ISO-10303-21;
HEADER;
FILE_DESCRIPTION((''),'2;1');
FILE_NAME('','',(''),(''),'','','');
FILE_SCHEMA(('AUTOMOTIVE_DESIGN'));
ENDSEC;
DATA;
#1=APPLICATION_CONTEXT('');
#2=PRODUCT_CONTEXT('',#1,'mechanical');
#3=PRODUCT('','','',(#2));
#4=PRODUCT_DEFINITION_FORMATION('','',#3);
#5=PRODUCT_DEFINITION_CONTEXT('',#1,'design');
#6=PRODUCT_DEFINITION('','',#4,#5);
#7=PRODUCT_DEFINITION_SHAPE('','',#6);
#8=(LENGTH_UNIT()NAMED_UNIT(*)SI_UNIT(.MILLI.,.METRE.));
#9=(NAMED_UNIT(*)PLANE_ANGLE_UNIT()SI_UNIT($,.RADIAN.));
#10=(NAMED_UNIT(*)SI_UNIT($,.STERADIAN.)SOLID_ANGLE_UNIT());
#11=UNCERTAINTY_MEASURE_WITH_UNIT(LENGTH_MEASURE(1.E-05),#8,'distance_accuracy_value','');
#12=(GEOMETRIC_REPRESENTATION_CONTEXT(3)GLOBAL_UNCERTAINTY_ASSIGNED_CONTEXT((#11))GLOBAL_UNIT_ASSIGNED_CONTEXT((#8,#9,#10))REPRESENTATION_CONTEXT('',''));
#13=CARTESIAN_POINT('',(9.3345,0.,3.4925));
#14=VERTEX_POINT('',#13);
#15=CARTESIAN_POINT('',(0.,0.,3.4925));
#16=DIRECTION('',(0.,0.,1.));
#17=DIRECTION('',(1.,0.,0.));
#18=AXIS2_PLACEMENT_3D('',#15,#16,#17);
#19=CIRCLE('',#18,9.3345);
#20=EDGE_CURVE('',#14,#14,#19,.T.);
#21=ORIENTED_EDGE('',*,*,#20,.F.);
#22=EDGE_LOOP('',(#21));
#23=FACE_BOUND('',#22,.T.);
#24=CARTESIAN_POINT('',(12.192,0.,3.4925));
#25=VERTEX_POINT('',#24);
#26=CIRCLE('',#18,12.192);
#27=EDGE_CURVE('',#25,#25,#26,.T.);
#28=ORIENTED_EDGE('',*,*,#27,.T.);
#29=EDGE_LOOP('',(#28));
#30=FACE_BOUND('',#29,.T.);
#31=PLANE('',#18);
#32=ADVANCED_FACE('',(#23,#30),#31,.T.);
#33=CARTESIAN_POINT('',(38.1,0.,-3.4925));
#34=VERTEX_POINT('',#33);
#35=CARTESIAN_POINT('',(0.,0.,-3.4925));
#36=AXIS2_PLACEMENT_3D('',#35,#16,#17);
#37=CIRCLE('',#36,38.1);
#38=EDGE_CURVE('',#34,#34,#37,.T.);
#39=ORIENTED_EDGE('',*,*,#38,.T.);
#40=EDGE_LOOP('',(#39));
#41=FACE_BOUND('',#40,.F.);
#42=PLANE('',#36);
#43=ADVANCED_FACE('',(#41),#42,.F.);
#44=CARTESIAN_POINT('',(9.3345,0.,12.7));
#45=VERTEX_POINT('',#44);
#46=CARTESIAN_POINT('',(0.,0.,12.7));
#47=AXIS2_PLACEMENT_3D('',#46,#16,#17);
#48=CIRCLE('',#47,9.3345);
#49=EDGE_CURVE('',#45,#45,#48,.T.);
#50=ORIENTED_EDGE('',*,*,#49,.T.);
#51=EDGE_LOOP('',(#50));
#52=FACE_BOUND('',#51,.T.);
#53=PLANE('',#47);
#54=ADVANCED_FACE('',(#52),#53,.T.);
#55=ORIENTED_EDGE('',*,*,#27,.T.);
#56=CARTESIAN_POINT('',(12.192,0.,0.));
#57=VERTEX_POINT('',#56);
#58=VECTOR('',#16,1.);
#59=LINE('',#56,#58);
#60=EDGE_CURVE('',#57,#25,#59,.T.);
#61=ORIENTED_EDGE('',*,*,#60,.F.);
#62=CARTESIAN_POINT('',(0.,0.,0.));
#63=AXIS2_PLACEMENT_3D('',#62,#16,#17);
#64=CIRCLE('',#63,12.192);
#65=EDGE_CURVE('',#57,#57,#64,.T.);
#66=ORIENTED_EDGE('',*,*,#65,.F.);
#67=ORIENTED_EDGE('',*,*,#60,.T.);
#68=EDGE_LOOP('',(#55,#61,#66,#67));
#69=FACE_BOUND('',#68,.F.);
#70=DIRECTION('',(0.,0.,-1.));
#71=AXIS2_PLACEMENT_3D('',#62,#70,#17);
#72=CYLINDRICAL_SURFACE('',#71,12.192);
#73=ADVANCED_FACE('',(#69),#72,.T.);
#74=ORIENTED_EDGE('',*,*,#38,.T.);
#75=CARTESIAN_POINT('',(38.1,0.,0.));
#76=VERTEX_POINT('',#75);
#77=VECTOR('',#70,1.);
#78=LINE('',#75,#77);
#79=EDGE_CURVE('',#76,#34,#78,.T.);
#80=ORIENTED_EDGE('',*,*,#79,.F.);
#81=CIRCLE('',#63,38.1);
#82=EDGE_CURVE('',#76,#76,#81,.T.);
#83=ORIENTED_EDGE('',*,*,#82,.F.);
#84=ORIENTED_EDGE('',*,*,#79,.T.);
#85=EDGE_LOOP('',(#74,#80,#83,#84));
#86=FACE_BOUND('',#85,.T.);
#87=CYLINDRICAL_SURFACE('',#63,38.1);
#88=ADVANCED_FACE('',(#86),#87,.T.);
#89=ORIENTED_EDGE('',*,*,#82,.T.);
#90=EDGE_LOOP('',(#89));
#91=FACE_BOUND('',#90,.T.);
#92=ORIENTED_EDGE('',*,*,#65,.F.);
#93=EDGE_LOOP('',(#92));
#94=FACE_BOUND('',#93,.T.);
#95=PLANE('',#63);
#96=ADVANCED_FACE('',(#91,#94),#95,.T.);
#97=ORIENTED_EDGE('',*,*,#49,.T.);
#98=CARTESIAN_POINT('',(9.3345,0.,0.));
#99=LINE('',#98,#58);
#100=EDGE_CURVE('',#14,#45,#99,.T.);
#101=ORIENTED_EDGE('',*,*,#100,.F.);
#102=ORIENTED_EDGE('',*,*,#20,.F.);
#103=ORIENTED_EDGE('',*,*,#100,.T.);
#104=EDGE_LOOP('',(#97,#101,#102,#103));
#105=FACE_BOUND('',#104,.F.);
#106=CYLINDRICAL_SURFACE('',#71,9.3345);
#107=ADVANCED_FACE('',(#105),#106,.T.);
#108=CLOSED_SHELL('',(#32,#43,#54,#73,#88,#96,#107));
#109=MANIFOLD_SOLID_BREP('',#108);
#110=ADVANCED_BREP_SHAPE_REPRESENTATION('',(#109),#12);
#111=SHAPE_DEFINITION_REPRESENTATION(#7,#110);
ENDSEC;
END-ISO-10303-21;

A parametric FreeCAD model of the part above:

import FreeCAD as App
import Part
import Sketcher
Q = App.Units.Quantity

doc = App.newDocument("Part")
params = doc.addObject("Spreadsheet::Sheet", "Params")
for row, (alias, value) in enumerate([
    ("sketch1_diameter", "0.96 in"),
    ("sketch1_diameter2", "0.735 in"),
    ("pad1_length", "0.1375 in"),
    ("sketch2_diameter", "0.735 in"),
    ("pad2_length", "0.5 in"),
    ("sketch3_diameter", "3 in"),
    ("pad3_length", "0.1375 in"),
], start=1):
    params.set(f"A{row}", alias)
    params.set(f"B{row}", "=" + value)
    params.setAlias(f"B{row}", alias)

body = doc.addObject("PartDesign::Body", "Body")

sketch1 = body.newObject("Sketcher::SketchObject", "Sketch")
sketch1.AttachmentSupport = (doc.getObject("XY_Plane"), [""])
sketch1.MapMode = "FlatFace"
sketch1.addGeometry(Part.Circle(App.Vector(0, 0, 0), App.Vector(0, 0, 1), 12), False)
sketch1.addGeometry(Part.Circle(App.Vector(0, 0, 0), App.Vector(0, 0, 1), 9), False)
sketch1.addConstraint(Sketcher.Constraint("Coincident", 0, 3, -1, 1))
sketch1.addConstraint(Sketcher.Constraint("Coincident", 1, 3, -1, 1))
sketch1.addConstraint(Sketcher.Constraint("Diameter", 0, Q("0.96 in")))
sketch1.addConstraint(Sketcher.Constraint("Diameter", 1, Q("0.735 in")))
sketch1.setExpression("Constraints[2]", "Params.sketch1_diameter")
sketch1.setExpression("Constraints[3]", "Params.sketch1_diameter2")
pad1 = body.newObject("PartDesign::Pad", "Pad")
pad1.Profile = sketch1
pad1.setExpression("Length", "Params.pad1_length")

sketch2 = body.newObject("Sketcher::SketchObject", "Sketch001")
sketch2.AttachmentSupport = (doc.getObject("XY_Plane"), [""])
sketch2.MapMode = "FlatFace"
sketch2.addGeometry(Part.Circle(App.Vector(0, 0, 0), App.Vector(0, 0, 1), 9), False)
sketch2.addConstraint(Sketcher.Constraint("Coincident", 0, 3, -1, 1))
sketch2.addConstraint(Sketcher.Constraint("Diameter", 0, Q("0.735 in")))
sketch2.setExpression("Constraints[1]", "Params.sketch2_diameter")
pad2 = body.newObject("PartDesign::Pad", "Pad001")
pad2.Profile = sketch2
pad2.setExpression("Length", "Params.pad2_length")

sketch3 = body.newObject("Sketcher::SketchObject", "Sketch002")
sketch3.AttachmentSupport = (doc.getObject("XY_Plane"), [""])
sketch3.MapMode = "FlatFace"
sketch3.addGeometry(Part.Circle(App.Vector(0, 0, 0), App.Vector(0, 0, 1), 38), False)
sketch3.addConstraint(Sketcher.Constraint("Coincident", 0, 3, -1, 1))
sketch3.addConstraint(Sketcher.Constraint("Diameter", 0, Q("3 in")))
sketch3.setExpression("Constraints[1]", "Params.sketch3_diameter")
pad3 = body.newObject("PartDesign::Pad", "Pad002")
pad3.Profile = sketch3
pad3.setExpression("Length", "Params.pad3_length")
pad3.Reversed = True

doc.recompute()
